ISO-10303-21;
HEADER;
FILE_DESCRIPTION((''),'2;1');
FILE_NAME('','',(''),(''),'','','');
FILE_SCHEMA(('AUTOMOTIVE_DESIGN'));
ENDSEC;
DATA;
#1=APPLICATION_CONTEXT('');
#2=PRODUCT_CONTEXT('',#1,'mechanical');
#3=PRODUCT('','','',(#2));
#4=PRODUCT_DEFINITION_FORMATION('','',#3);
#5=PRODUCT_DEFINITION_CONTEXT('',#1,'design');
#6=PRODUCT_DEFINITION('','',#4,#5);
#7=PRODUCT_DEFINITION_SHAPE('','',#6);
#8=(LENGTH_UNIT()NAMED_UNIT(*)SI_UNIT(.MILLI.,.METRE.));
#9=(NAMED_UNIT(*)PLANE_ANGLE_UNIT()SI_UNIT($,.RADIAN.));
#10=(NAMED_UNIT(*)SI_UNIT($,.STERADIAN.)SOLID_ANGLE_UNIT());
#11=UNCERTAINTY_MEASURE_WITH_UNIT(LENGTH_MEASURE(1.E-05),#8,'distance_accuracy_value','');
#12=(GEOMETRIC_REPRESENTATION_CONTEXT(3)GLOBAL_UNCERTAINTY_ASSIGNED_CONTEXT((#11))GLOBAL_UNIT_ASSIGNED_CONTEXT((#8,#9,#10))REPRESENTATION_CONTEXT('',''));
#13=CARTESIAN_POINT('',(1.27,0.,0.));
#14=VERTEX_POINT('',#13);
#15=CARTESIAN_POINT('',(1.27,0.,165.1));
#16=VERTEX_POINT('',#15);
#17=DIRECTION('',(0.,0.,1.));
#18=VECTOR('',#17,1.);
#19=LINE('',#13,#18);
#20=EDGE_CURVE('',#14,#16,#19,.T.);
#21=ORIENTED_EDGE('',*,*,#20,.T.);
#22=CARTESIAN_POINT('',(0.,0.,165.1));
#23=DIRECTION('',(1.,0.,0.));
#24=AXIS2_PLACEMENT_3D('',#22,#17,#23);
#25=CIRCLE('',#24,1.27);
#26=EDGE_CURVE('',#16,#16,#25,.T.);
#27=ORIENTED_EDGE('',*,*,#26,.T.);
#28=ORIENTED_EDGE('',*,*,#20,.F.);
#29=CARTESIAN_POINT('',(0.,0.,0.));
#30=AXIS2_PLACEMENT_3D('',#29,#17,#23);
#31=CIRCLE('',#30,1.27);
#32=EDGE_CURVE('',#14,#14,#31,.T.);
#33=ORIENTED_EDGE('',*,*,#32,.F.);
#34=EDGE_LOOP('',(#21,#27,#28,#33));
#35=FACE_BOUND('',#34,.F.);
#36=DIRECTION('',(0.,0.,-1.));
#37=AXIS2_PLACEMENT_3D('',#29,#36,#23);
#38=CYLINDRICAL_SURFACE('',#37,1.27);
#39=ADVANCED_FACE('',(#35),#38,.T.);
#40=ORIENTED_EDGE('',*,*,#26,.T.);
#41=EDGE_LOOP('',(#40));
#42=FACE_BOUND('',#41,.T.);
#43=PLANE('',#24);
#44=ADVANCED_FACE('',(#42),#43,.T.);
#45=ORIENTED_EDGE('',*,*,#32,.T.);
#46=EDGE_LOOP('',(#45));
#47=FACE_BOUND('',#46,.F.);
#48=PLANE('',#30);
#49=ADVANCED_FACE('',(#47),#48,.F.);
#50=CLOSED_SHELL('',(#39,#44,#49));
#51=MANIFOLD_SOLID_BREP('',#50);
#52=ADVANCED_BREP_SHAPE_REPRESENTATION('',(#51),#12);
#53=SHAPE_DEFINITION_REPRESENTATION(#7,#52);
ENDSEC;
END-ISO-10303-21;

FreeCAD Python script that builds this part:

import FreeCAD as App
import Part
import Sketcher
Q = App.Units.Quantity

doc = App.newDocument("Part")
params = doc.addObject("Spreadsheet::Sheet", "Params")
for row, (alias, value) in enumerate([
    ("sketch1_diameter", "0.1 in"),
    ("pad1_length", "6.5 in"),
], start=1):
    params.set(f"A{row}", alias)
    params.set(f"B{row}", "=" + value)
    params.setAlias(f"B{row}", alias)

body = doc.addObject("PartDesign::Body", "Body")

sketch1 = body.newObject("Sketcher::SketchObject", "Sketch")
sketch1.AttachmentSupport = (doc.getObject("XY_Plane"), [""])
sketch1.MapMode = "FlatFace"
sketch1.addGeometry(Part.Circle(App.Vector(0, 0, 0), App.Vector(0, 0, 1), 1.3), False)
sketch1.addConstraint([
    Sketcher.Constraint("Coincident", 0, 3, -1, 1),
    Sketcher.Constraint("Diameter", 0, Q("0.1 in")),
])
sketch1.setExpression("Constraints[1]", "Params.sketch1_diameter")
pad1 = body.newObject("PartDesign::Pad", "Pad")
pad1.Profile = sketch1
pad1.setExpression("Length", "Params.pad1_length")

doc.recompute()
